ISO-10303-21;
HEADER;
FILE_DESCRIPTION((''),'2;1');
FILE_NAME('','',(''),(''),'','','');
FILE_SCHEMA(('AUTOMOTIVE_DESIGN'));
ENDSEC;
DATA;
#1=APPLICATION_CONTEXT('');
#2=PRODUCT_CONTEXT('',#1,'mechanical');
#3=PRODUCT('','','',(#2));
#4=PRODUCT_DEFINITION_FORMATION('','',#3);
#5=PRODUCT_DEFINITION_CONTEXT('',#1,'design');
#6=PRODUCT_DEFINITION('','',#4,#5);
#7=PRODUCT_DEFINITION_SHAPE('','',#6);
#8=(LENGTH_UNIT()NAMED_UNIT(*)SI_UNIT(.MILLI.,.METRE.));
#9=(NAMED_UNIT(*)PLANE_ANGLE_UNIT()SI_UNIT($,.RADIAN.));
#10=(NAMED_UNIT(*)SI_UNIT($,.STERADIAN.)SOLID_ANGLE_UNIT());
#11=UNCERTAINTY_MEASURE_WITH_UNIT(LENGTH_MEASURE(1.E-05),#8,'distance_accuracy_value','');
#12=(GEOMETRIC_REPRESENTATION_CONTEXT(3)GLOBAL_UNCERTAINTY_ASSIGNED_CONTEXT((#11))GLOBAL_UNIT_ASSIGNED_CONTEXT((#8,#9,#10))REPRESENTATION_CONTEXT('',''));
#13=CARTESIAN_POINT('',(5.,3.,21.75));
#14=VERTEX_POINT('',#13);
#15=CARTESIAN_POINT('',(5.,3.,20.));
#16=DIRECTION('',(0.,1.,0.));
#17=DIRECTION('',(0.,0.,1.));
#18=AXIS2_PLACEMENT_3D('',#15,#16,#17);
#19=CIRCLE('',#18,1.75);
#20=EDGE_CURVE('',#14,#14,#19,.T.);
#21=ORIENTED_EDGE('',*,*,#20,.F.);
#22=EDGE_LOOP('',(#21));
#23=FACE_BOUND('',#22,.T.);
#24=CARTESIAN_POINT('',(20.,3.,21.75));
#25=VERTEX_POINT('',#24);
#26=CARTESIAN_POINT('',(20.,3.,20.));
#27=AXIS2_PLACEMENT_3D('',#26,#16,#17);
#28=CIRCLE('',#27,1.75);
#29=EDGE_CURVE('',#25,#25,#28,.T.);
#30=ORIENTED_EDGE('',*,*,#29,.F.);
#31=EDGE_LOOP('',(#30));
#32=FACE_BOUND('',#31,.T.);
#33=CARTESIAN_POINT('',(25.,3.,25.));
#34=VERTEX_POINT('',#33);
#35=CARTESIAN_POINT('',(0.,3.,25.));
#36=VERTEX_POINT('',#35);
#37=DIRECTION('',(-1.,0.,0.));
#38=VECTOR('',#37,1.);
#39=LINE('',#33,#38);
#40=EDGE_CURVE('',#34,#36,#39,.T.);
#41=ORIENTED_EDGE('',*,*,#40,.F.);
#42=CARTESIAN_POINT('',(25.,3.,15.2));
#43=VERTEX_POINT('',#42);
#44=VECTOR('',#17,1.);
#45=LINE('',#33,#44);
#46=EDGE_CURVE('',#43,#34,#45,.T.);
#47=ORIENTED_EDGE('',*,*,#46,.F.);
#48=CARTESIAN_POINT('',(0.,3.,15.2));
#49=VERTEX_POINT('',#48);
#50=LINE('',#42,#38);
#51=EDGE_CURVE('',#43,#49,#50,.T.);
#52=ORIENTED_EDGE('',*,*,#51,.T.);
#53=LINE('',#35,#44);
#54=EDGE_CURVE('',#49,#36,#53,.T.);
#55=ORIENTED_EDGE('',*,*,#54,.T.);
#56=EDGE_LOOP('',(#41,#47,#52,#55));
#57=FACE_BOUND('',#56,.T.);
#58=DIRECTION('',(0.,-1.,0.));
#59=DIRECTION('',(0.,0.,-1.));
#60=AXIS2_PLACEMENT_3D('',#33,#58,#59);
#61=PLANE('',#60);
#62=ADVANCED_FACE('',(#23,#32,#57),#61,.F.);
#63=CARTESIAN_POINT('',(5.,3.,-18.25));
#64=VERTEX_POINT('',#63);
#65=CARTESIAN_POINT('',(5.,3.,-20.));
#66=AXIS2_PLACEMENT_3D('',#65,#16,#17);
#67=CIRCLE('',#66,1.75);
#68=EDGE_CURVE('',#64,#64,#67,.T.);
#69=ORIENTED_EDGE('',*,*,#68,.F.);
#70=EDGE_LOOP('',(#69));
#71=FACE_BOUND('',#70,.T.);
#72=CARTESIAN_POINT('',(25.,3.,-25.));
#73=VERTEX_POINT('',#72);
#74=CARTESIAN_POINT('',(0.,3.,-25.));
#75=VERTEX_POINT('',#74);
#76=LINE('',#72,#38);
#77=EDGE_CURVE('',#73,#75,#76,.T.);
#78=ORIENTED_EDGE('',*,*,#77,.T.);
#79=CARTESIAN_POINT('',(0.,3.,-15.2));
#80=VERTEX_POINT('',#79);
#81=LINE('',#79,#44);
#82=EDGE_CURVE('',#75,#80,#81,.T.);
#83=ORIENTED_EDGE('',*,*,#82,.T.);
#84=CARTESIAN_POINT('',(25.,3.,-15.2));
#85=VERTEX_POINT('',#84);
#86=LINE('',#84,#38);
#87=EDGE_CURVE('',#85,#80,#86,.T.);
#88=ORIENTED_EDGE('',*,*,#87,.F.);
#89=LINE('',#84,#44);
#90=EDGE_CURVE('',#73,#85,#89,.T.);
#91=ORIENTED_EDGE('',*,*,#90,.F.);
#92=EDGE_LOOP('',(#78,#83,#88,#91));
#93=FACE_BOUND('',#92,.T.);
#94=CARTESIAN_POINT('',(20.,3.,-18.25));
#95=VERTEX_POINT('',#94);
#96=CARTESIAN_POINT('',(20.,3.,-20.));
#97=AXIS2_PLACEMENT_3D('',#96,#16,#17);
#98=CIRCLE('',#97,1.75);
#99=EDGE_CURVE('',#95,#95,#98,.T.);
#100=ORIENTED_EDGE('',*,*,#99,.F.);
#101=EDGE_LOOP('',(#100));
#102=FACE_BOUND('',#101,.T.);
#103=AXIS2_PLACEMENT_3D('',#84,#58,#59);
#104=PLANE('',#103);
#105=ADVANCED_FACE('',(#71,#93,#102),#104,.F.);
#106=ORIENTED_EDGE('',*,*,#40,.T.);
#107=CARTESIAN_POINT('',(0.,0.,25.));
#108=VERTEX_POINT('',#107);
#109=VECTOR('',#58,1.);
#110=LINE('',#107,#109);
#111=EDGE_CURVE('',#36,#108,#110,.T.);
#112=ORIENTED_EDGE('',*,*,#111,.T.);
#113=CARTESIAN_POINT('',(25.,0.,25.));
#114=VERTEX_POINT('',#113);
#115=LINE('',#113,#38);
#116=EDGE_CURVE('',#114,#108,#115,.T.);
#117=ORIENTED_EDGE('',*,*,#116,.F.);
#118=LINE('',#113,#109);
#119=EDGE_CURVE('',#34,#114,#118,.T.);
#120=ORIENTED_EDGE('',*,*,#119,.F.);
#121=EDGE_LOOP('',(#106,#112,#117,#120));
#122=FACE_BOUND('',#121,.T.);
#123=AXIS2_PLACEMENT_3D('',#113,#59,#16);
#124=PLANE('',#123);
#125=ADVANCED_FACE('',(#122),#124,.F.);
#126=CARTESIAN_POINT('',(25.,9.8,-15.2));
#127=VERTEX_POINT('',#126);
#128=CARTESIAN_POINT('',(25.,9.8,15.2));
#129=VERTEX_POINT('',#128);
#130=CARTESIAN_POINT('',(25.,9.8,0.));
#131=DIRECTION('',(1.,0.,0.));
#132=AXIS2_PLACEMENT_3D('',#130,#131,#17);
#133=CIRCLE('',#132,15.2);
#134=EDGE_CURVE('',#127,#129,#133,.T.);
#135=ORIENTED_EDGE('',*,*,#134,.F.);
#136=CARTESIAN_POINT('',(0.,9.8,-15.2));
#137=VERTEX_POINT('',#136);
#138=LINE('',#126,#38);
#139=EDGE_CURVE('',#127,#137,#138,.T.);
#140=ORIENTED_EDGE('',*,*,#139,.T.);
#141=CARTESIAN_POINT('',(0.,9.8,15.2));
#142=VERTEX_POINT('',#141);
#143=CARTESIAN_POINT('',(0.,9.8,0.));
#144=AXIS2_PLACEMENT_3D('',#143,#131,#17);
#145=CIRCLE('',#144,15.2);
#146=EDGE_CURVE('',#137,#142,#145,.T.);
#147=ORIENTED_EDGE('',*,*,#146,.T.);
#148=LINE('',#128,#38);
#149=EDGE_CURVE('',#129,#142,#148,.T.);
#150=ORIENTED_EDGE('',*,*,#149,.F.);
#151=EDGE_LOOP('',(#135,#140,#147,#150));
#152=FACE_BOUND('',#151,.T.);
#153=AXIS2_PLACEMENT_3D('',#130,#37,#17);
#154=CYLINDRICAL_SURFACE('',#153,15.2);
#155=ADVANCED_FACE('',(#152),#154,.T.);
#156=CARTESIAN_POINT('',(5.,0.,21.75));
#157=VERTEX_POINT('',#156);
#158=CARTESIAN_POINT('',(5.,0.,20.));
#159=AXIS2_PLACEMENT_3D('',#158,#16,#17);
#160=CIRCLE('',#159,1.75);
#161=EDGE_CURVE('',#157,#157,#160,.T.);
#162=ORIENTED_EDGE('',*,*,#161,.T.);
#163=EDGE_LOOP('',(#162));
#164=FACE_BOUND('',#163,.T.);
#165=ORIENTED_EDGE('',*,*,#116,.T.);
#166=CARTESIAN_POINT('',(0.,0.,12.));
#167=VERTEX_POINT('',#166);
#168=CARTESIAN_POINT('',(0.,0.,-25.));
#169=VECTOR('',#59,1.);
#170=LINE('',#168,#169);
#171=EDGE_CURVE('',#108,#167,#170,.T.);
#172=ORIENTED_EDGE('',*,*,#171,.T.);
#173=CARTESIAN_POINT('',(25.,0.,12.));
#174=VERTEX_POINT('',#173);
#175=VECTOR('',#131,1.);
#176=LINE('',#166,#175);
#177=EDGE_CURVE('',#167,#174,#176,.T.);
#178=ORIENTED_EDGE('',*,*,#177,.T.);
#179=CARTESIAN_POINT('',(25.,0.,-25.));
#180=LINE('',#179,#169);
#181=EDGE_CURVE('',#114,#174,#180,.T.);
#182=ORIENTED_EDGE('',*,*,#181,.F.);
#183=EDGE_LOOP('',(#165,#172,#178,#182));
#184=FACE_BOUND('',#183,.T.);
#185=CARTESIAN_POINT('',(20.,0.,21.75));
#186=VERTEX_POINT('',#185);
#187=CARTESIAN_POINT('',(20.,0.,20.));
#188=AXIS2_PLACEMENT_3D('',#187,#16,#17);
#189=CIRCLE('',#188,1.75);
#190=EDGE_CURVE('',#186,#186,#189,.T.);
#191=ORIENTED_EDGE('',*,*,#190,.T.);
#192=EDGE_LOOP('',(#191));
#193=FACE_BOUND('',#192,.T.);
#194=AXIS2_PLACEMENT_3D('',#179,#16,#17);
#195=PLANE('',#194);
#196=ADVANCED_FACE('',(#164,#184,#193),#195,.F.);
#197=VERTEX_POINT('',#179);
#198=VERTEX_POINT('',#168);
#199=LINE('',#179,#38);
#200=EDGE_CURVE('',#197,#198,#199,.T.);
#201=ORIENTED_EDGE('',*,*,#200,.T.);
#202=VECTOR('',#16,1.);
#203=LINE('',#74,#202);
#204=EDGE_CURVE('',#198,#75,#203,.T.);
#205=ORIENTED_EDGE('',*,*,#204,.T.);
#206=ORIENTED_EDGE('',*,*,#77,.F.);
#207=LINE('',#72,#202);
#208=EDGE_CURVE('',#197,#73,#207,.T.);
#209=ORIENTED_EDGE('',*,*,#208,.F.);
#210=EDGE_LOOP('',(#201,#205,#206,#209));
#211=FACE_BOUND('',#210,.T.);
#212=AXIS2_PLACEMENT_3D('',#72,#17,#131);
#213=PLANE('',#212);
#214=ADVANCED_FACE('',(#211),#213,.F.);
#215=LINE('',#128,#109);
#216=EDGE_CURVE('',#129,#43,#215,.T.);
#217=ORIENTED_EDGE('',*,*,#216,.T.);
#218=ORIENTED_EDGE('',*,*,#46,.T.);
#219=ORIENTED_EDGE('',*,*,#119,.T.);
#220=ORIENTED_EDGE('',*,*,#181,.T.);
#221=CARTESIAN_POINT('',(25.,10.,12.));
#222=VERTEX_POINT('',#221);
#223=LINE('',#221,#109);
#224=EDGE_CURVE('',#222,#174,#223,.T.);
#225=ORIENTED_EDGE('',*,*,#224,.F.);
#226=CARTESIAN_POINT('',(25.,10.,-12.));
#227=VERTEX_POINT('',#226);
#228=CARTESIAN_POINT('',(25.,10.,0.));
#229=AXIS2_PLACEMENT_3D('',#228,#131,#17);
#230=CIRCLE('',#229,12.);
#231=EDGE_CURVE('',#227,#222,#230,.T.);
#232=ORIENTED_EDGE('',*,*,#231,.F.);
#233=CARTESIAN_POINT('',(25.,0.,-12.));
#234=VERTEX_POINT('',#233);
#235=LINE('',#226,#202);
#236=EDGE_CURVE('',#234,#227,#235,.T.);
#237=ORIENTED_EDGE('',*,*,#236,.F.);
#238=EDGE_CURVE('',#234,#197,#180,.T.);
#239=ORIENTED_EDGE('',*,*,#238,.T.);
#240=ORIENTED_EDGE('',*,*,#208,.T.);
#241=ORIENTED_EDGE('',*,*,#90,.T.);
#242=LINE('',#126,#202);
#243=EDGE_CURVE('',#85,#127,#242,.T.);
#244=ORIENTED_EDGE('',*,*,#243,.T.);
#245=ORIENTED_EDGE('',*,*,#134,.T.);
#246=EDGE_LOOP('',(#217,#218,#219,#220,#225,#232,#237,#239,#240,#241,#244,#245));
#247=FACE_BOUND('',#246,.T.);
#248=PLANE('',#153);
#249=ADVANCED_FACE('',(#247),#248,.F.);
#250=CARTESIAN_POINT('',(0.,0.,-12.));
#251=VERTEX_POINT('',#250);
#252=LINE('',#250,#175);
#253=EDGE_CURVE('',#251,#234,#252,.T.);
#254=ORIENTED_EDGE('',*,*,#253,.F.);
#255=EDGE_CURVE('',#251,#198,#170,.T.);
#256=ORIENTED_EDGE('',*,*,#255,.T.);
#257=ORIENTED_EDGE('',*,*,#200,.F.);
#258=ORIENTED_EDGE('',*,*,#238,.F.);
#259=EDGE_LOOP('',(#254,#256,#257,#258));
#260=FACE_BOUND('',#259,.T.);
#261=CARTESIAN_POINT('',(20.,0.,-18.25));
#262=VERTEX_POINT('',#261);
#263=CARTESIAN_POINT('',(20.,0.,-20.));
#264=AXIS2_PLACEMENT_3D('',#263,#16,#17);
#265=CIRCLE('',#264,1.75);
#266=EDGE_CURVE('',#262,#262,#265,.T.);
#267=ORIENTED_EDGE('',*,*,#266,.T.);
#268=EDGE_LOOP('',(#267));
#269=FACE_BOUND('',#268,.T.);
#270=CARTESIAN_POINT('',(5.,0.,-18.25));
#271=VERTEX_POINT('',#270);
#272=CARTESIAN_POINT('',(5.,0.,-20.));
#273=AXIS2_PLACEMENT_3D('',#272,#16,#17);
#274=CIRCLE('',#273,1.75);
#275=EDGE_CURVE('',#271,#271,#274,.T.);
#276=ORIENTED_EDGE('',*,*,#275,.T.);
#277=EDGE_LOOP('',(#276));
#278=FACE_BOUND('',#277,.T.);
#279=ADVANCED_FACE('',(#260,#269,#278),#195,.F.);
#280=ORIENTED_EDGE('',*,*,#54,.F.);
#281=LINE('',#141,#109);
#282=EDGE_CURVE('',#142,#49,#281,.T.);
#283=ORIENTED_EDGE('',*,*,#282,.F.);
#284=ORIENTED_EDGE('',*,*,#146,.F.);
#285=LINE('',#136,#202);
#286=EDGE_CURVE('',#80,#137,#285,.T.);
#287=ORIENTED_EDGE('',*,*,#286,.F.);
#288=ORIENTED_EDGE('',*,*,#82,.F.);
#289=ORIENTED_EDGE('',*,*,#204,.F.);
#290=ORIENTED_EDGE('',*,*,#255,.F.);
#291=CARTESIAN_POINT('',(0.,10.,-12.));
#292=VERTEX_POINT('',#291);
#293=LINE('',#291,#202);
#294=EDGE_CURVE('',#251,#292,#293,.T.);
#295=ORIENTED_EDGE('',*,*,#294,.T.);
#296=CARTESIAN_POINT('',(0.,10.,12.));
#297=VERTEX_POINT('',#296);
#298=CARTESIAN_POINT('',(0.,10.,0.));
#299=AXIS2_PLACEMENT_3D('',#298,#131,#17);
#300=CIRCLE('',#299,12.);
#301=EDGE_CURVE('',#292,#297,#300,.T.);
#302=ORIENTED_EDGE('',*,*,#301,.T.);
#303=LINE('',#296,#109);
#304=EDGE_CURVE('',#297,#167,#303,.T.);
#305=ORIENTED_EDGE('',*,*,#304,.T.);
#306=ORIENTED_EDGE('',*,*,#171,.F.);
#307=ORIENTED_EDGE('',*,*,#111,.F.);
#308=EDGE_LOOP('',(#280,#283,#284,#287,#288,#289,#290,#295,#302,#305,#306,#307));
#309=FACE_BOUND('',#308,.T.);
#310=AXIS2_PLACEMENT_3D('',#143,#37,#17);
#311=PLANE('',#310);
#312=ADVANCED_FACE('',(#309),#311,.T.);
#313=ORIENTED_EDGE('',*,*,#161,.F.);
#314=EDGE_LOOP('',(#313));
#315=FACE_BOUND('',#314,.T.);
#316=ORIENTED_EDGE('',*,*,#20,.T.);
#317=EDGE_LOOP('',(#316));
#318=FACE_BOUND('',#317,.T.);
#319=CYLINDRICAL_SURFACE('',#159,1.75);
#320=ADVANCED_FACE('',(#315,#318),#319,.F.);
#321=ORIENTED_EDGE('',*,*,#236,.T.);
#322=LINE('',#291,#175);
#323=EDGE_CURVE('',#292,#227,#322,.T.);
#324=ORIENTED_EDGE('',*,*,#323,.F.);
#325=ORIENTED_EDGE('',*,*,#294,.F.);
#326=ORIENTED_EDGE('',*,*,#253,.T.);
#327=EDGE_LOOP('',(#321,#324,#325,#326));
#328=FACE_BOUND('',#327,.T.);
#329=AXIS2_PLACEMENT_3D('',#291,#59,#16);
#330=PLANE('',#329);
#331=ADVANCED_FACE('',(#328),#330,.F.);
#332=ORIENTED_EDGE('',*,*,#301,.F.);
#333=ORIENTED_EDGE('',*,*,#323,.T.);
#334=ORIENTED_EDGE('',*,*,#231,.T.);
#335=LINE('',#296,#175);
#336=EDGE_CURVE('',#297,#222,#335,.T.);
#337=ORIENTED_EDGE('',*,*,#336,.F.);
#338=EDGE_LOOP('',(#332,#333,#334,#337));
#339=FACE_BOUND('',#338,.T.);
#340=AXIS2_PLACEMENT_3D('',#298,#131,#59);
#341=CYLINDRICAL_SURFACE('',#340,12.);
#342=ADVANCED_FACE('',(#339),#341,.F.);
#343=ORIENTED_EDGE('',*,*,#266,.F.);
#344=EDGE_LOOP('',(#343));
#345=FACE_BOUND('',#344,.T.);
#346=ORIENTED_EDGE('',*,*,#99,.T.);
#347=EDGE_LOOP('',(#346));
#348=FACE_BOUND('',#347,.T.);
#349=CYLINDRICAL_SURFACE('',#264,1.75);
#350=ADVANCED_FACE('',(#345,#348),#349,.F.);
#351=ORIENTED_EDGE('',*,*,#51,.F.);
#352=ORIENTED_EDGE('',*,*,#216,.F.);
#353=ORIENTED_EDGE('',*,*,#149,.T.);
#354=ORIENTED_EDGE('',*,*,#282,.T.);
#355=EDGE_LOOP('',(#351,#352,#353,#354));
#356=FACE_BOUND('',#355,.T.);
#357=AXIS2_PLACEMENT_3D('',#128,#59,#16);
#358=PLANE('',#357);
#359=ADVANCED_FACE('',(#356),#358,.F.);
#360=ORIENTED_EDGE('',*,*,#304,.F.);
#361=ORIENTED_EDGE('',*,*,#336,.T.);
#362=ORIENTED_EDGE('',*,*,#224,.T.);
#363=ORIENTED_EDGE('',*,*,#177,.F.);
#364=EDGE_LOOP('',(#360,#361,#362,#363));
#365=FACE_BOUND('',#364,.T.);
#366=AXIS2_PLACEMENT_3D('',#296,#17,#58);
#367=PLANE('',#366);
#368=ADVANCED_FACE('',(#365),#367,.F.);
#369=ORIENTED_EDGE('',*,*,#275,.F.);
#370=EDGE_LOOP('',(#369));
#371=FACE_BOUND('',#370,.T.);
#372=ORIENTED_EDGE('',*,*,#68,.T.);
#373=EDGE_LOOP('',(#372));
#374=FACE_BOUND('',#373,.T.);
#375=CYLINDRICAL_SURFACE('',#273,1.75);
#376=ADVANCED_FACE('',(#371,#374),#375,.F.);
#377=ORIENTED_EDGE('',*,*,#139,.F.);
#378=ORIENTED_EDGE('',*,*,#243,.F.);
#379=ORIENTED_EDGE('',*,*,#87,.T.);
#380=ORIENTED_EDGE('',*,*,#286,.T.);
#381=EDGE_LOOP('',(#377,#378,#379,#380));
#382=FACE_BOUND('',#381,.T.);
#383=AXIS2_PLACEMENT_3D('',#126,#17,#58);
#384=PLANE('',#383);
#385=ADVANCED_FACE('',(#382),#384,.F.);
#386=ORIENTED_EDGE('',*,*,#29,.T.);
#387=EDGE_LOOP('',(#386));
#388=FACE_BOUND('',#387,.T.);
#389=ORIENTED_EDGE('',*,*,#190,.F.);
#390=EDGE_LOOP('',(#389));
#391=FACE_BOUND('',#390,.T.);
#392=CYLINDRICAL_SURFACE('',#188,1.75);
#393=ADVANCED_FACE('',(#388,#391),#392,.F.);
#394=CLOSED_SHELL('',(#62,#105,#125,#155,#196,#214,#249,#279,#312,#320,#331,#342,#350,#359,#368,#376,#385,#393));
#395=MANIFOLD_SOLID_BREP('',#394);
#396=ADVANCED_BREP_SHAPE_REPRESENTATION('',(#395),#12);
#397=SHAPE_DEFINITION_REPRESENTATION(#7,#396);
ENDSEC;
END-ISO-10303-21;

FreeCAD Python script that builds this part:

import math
import FreeCAD as App
import Part
import Sketcher

V = App.Vector

doc = App.newDocument("Part")
body = doc.addObject("PartDesign::Body", "Body")

# Sketch on YZ plane
sketch1 = body.newObject("Sketcher::SketchObject", "Sketch")
sketch1.AttachmentSupport = (doc.getObject("YZ_Plane"), [""])
sketch1.MapMode = "FlatFace"
sketch1.addGeometry(Part.LineSegment(V(3, 25, 0), V(0, 25, 0)), False)
sketch1.addGeometry(Part.LineSegment(V(0, 25, 0), V(0, -25, 0)), False)
sketch1.addGeometry(Part.LineSegment(V(0, -25, 0), V(3, -25, 0)), False)
sketch1.addGeometry(Part.LineSegment(V(3, -25, 0), V(3, -15.2, 0)), False)
sketch1.addGeometry(Part.LineSegment(V(3, -15.2, 0), V(9.8, -15.2, 0)), False)
sketch1.addGeometry(Part.ArcOfCircle(Part.Circle(V(9.8, 0, 0), V(0, 0, 1), 15.2), math.radians(-90), math.radians(90)), False)
sketch1.addGeometry(Part.LineSegment(V(9.8, 15.2, 0), V(3, 15.2, 0)), False)
sketch1.addGeometry(Part.LineSegment(V(3, 15.2, 0), V(3, 25, 0)), False)
sketch1.addConstraint(Sketcher.Constraint("Coincident", 0, 2, 1, 1))
sketch1.addConstraint(Sketcher.Constraint("Coincident", 1, 2, 2, 1))
sketch1.addConstraint(Sketcher.Constraint("Coincident", 2, 2, 3, 1))
sketch1.addConstraint(Sketcher.Constraint("Coincident", 3, 2, 4, 1))
sketch1.addConstraint(Sketcher.Constraint("Tangent", 4, 2, 5, 1))
sketch1.addConstraint(Sketcher.Constraint("Tangent", 5, 2, 6, 1))
sketch1.addConstraint(Sketcher.Constraint("Coincident", 6, 2, 7, 1))
sketch1.addConstraint(Sketcher.Constraint("Coincident", 7, 2, 0, 1))
sketch1.addConstraint(Sketcher.Constraint("Horizontal", 0))
sketch1.addConstraint(Sketcher.Constraint("Vertical", 1))
sketch1.addConstraint(Sketcher.Constraint("Horizontal", 2))
sketch1.addConstraint(Sketcher.Constraint("Vertical", 3))
sketch1.addConstraint(Sketcher.Constraint("Horizontal", 4))
sketch1.addConstraint(Sketcher.Constraint("Horizontal", 6))
sketch1.addConstraint(Sketcher.Constraint("Vertical", 7))
sketch1.addConstraint(Sketcher.Constraint("Symmetric", 0, 2, 1, 2, -1, 1))
sketch1.addConstraint(Sketcher.Constraint("Symmetric", 3, 2, 6, 2, -1))
sketch1.addConstraint(Sketcher.Constraint("Radius", 5, 15.2))
sketch1.addConstraint(Sketcher.Constraint("DistanceX", 0, 2, 0, 1, 3.0))
sketch1.addConstraint(Sketcher.Constraint("DistanceY", 1, 2, 1, 1, 50.0))
sketch1.addConstraint(Sketcher.Constraint("DistanceX", 4, 1, 4, 2, 6.8))
pad1 = body.newObject("PartDesign::Pad", "Pad")
pad1.Profile = sketch1
pad1.Length = 25

# Sketch on YZ plane
sketch2 = body.newObject("Sketcher::SketchObject", "Sketch001")
sketch2.AttachmentSupport = (doc.getObject("YZ_Plane"), [""])
sketch2.MapMode = "FlatFace"
sketch2.AttachmentOffset = App.Placement(V(0, 0, 25), App.Rotation())
sketch2.addGeometry(Part.LineSegment(V(10, 12, 0), V(0, 12, 0)), False)
sketch2.addGeometry(Part.LineSegment(V(0, 12, 0), V(0, -12, 0)), False)
sketch2.addGeometry(Part.LineSegment(V(0, -12, 0), V(10, -12, 0)), False)
sketch2.addGeometry(Part.ArcOfCircle(Part.Circle(V(10, 0, 0), V(0, 0, 1), 12), math.radians(-90), math.radians(90)), False)
sketch2.addConstraint(Sketcher.Constraint("Coincident", 0, 2, 1, 1))
sketch2.addConstraint(Sketcher.Constraint("Coincident", 1, 2, 2, 1))
sketch2.addConstraint(Sketcher.Constraint("Tangent", 2, 2, 3, 1))
sketch2.addConstraint(Sketcher.Constraint("Tangent", 3, 2, 0, 1))
sketch2.addConstraint(Sketcher.Constraint("Horizontal", 0))
sketch2.addConstraint(Sketcher.Constraint("Vertical", 1))
sketch2.addConstraint(Sketcher.Constraint("Horizontal", 2))
sketch2.addConstraint(Sketcher.Constraint("Symmetric", 0, 2, 1, 2, -1, 1))
sketch2.addConstraint(Sketcher.Constraint("Radius", 3, 12.0))
sketch2.addConstraint(Sketcher.Constraint("DistanceX", 0, 2, 0, 1, 10.0))
pocket1 = body.newObject("PartDesign::Pocket", "Pocket")
pocket1.Profile = sketch2
pocket1.Type = "ThroughAll"

# Sketch on XZ plane
sketch3 = body.newObject("Sketcher::SketchObject", "Sketch002")
sketch3.AttachmentSupport = (doc.getObject("XZ_Plane"), [""])
sketch3.MapMode = "FlatFace"
sketch3.AttachmentOffset = App.Placement(V(0, 0, -3), App.Rotation())
sketch3.addGeometry(Part.Circle(V(5, 20, 0), V(0, 0, 1), 1.75), False)
sketch3.addGeometry(Part.Circle(V(20, 20, 0), V(0, 0, 1), 1.75), False)
sketch3.addGeometry(Part.Circle(V(5, -20, 0), V(0, 0, 1), 1.75), False)
sketch3.addGeometry(Part.Circle(V(20, -20, 0), V(0, 0, 1), 1.75), False)
sketch3.addConstraint(Sketcher.Constraint("Equal", 0, 1))
sketch3.addConstraint(Sketcher.Constraint("Equal", 1, 2))
sketch3.addConstraint(Sketcher.Constraint("Equal", 2, 3))
sketch3.addConstraint(Sketcher.Constraint("Symmetric", 0, 3, 2, 3, -1))
sketch3.addConstraint(Sketcher.Constraint("Symmetric", 1, 3, 3, 3, -1))
sketch3.addConstraint(Sketcher.Constraint("Horizontal", 0, 3, 1, 3))
sketch3.addConstraint(Sketcher.Constraint("Diameter", 0, 3.5))
sketch3.addConstraint(Sketcher.Constraint("DistanceX", -1, 1, 0, 3, 5.0))
sketch3.addConstraint(Sketcher.Constraint("DistanceY", -1, 1, 0, 3, 20.0))
sketch3.addConstraint(Sketcher.Constraint("DistanceX", -1, 1, 1, 3, 20.0))
pocket2 = body.newObject("PartDesign::Pocket", "Pocket001")
pocket2.Profile = sketch3
pocket2.Type = "ThroughAll"
pocket2.Reversed = True

doc.recompute()
